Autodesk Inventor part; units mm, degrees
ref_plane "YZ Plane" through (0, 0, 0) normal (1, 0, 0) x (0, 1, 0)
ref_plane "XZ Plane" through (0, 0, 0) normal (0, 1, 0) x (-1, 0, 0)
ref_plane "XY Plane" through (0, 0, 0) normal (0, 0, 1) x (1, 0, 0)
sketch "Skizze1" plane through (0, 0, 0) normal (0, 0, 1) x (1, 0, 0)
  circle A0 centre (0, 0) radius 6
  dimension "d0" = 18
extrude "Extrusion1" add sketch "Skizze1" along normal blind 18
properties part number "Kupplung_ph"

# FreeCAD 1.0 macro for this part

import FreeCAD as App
import Part
import Sketcher

V = App.Vector

doc = App.newDocument("Part")
body = doc.addObject("PartDesign::Body", "Body")

sketch1 = body.newObject("Sketcher::SketchObject", "Sketch")
sketch1.AttachmentSupport = (doc.getObject("XY_Plane"), [""])
sketch1.MapMode = "FlatFace"
sketch1.addGeometry(Part.Circle(V(0, 0, 0), V(0, 0, 1), 6), False)
sketch1.addConstraint([
    Sketcher.Constraint("Coincident", 0, 3, -1, 1),
    Sketcher.Constraint("Diameter", 0, 12.0),
])
pad1 = body.newObject("PartDesign::Pad", "Pad")
pad1.Profile = sketch1
pad1.Length = 18

doc.recompute()
